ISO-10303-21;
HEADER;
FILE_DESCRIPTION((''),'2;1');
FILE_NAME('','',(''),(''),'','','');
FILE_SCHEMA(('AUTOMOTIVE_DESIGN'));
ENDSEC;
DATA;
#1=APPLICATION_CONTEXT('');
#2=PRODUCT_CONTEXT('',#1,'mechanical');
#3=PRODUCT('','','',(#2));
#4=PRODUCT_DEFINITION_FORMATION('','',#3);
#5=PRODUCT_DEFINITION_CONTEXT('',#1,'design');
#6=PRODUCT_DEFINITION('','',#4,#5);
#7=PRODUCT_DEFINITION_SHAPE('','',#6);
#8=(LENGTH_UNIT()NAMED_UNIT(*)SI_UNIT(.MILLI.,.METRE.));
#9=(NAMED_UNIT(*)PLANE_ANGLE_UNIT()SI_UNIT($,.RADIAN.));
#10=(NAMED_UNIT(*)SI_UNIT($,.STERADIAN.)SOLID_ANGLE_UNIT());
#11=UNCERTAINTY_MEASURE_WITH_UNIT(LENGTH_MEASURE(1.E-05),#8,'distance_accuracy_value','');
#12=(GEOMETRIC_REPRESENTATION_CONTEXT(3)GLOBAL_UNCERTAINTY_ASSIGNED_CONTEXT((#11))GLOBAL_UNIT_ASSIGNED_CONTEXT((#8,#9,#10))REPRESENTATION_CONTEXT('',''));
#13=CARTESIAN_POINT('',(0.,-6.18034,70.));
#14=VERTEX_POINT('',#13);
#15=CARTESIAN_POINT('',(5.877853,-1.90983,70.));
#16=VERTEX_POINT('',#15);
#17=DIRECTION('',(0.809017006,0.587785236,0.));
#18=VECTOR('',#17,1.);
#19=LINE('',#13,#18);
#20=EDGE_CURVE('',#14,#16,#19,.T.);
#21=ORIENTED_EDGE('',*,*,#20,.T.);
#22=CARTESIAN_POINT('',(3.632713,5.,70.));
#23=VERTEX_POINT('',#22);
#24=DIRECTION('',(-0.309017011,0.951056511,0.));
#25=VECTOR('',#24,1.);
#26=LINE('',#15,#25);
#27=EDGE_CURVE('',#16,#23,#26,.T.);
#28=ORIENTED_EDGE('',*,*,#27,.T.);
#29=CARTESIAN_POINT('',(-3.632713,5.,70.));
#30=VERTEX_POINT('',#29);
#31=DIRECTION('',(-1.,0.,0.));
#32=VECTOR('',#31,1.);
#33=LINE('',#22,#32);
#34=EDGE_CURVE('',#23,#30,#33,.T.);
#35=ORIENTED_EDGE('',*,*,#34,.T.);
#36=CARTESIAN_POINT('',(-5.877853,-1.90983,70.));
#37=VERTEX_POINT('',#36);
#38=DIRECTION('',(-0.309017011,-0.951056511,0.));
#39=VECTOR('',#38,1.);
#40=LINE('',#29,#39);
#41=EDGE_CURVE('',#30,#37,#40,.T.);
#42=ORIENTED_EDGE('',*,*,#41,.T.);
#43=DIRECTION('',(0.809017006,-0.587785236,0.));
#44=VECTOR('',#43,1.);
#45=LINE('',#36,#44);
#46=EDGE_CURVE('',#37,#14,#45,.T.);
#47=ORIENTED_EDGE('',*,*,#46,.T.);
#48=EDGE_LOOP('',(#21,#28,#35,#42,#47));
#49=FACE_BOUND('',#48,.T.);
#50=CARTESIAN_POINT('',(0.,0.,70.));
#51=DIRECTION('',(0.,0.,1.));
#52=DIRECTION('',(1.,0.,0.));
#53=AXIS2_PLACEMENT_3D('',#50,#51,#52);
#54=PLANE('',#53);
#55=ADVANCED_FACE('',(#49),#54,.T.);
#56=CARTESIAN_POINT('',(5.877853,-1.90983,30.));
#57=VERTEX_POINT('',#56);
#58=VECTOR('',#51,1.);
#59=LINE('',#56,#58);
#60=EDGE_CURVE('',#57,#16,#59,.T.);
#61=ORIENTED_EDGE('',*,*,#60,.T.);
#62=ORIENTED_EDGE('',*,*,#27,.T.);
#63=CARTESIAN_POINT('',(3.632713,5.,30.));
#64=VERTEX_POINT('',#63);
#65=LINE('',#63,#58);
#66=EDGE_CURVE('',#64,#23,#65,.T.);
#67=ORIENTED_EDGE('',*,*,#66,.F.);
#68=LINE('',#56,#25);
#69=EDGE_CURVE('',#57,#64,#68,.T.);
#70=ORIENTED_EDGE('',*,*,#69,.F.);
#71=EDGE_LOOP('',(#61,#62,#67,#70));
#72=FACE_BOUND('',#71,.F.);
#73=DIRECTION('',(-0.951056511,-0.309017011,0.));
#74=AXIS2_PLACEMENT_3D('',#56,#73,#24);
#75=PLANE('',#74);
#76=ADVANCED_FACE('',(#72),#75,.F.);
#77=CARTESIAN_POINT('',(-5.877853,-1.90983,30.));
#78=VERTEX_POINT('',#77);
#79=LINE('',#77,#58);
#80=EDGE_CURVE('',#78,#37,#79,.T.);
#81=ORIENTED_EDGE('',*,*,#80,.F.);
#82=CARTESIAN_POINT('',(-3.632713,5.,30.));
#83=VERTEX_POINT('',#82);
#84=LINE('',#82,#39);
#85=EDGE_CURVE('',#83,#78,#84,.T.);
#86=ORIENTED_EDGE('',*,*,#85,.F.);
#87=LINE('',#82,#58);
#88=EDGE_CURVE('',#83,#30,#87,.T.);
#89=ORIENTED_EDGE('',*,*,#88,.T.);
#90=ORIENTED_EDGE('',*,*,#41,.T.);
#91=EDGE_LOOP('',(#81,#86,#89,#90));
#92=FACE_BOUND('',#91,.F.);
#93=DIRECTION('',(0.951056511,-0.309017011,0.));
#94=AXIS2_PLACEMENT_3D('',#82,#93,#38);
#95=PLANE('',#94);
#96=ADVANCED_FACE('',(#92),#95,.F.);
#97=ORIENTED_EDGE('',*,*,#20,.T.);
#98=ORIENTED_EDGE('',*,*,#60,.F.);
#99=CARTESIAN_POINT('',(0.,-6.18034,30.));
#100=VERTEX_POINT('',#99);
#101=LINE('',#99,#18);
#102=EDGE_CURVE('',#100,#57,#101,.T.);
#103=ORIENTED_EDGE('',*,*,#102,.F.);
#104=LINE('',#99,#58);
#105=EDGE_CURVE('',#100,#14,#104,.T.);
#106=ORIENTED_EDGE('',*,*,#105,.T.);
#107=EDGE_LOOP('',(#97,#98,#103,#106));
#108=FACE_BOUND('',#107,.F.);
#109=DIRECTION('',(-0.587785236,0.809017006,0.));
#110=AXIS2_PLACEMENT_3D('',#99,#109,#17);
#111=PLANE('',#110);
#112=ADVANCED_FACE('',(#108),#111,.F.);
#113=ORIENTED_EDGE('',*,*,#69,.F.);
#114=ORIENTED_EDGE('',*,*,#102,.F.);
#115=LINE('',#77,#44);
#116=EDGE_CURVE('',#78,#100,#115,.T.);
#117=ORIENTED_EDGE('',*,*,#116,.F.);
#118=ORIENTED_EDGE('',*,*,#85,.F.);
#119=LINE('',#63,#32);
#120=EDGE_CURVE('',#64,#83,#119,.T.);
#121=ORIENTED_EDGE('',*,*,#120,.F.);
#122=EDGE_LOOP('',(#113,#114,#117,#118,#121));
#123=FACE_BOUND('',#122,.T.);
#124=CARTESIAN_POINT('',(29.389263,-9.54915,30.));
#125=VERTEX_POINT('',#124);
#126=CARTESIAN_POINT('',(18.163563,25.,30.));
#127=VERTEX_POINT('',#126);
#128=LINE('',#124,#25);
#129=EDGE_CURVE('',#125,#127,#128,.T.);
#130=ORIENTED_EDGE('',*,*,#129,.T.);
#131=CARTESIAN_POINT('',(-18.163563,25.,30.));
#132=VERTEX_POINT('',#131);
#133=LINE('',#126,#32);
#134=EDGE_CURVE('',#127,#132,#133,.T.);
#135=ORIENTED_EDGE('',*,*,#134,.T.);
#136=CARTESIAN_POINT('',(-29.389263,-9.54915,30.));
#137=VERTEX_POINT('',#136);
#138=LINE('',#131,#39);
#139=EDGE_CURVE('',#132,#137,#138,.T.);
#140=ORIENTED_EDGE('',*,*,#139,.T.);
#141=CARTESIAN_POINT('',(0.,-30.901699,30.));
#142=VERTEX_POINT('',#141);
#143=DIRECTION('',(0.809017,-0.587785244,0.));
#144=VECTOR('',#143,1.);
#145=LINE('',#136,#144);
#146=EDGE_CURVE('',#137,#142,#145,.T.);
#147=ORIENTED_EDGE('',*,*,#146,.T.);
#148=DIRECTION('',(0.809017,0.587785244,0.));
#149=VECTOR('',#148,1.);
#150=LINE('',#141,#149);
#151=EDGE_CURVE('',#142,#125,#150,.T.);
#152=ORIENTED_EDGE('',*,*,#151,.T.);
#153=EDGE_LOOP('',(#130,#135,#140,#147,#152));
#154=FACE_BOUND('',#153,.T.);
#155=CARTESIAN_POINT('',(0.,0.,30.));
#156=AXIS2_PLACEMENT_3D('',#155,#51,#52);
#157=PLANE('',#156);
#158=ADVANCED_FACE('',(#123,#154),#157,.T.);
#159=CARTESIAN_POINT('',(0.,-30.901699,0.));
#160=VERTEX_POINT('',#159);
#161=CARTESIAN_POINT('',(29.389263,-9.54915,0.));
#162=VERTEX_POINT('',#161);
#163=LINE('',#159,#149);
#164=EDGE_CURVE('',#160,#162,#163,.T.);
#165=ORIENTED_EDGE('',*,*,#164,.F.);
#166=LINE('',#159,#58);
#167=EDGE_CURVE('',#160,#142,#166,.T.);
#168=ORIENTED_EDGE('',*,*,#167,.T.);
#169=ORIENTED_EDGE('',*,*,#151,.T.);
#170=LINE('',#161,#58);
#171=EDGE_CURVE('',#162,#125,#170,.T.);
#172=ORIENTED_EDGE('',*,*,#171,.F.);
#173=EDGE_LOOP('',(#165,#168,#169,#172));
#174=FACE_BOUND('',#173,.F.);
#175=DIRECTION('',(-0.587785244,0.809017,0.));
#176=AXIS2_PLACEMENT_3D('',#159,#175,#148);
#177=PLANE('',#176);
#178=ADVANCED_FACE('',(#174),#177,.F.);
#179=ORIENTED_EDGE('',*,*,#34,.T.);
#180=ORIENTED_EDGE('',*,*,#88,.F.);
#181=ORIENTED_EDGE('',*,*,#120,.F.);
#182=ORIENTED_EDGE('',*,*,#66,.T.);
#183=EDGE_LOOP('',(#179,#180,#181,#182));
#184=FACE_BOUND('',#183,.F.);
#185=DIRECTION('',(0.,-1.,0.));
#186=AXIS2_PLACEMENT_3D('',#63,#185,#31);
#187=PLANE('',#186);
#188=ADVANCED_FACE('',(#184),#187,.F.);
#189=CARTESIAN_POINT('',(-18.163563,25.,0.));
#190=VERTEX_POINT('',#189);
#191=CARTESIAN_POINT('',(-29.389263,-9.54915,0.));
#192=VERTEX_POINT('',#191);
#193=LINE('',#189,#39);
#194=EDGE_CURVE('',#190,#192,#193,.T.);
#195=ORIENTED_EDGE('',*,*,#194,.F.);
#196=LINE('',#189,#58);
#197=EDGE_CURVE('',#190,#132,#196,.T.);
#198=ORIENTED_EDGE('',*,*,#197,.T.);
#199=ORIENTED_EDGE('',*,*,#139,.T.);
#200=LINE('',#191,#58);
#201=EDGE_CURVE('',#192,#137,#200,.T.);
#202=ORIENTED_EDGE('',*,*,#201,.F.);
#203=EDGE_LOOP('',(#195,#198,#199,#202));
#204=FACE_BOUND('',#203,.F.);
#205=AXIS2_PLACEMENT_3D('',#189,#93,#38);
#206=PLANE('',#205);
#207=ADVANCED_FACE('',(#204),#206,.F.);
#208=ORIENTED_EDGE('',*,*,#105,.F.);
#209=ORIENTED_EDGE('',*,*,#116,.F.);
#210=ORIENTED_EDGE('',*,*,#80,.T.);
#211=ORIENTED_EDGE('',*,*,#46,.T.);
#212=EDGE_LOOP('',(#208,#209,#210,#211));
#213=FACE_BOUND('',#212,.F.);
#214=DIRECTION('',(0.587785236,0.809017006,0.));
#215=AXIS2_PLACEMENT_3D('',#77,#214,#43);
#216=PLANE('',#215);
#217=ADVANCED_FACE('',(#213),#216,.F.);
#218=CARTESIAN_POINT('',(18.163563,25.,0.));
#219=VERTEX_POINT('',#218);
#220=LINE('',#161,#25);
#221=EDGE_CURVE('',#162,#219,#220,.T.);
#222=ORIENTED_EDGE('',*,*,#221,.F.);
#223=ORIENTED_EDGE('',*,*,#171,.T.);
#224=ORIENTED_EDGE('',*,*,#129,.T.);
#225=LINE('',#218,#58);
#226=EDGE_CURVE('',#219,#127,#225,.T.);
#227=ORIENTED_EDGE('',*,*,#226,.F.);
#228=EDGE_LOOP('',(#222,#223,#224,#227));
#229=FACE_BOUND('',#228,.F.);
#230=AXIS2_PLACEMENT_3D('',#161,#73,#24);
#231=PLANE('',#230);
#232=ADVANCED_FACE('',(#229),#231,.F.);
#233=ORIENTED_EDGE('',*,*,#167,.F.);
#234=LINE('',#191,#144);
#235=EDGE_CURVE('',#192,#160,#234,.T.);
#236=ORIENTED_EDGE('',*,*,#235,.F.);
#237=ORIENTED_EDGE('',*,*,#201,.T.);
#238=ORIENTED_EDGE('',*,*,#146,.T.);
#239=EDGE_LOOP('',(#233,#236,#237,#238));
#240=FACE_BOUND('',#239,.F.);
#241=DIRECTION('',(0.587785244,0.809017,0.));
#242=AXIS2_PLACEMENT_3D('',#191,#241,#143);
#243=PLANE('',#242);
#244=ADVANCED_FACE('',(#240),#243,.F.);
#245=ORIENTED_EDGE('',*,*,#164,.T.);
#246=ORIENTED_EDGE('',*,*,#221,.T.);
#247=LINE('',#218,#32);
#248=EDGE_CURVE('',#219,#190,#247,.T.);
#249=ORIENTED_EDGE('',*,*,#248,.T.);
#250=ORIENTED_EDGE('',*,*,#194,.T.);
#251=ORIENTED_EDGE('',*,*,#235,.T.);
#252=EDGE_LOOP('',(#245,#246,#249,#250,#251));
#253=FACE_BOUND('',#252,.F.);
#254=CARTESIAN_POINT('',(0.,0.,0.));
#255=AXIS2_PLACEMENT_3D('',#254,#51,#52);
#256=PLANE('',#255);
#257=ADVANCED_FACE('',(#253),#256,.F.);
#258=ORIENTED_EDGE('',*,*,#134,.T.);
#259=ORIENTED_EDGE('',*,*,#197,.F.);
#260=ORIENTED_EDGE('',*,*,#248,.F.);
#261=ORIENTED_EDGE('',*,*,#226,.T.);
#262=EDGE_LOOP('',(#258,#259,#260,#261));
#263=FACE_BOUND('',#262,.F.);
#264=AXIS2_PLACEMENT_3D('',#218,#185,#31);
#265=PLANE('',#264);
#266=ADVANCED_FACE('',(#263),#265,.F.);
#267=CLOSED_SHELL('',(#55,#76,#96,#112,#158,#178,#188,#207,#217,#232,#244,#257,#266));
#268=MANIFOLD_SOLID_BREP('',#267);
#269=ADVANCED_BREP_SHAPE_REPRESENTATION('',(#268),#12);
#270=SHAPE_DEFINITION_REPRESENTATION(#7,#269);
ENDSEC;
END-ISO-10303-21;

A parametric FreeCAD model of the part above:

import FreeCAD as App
import Part
import Sketcher
Q = App.Units.Quantity


def add_polygon(sketch, points):
    """Adds a closed chain of lines whose ends are joined by coincident constraints."""
    first, n = sketch.GeometryCount, len(points)
    for a, b in zip(points, points[1:] + points[:1]):
        sketch.addGeometry(Part.LineSegment(App.Vector(*a, 0), App.Vector(*b, 0)), False)
    for i in range(n):
        sketch.addConstraint(Sketcher.Constraint("Coincident", first + i, 2, first + (i + 1) % n, 1))

doc = App.newDocument("Part")
body = doc.addObject("PartDesign::Body", "Body")

# Sketch on XY plane
sketch1 = body.newObject("Sketcher::SketchObject", "Sketch")
sketch1.AttachmentSupport = (doc.getObject("XY_Plane"), [""])
sketch1.MapMode = "FlatFace"
add_polygon(sketch1, [(18, 25), (-18, 25), (-29, -10), (0, -31), (29, -10)])  # lines 0-4
sketch1.addConstraint([
    Sketcher.Constraint("Horizontal", 0),
    Sketcher.Constraint("Symmetric", 1, 2, 3, 2, -2),
    Sketcher.Constraint("PointOnObject", 2, 2, -2),
    Sketcher.Constraint("Equal", 1, 2),
    Sketcher.Constraint("Equal", 3, 4),
    Sketcher.Constraint("Angle", 1, Q("-108.000001 deg")),
    Sketcher.Constraint("Angle", 2, Q("-35.999999 deg")),
    Sketcher.Constraint("DistanceY", -1, 1, 0, 2, Q("25 mm")),
    Sketcher.Constraint("DistanceY", 2, 2, -1, 1, Q("30.901699 mm")),
])
pad1 = body.newObject("PartDesign::Pad", "Pad")
pad1.Profile = sketch1
pad1.Length = 30

# Sketch on XY plane
sketch2 = body.newObject("Sketcher::SketchObject", "Sketch001")
sketch2.AttachmentSupport = (doc.getObject("XY_Plane"), [""])
sketch2.MapMode = "FlatFace"
sketch2.AttachmentOffset = App.Placement(App.Vector(0, 0, 30), App.Rotation())
add_polygon(sketch2, [(-6, -2), (0, -6), (6, -2), (4, 5), (-4, 5)])  # lines 0-4
sketch2.addConstraint([
    Sketcher.Constraint("Horizontal", 3),
    Sketcher.Constraint("Symmetric", 1, 2, 4, 2, -2),
    Sketcher.Constraint("PointOnObject", 0, 2, -2),
    Sketcher.Constraint("Equal", 1, 2),
    Sketcher.Constraint("Equal", 2, 4),
    Sketcher.Constraint("Angle", 0, Q("-35.999999 deg")),
    Sketcher.Constraint("Angle", 2, Q("108.000001 deg")),
    Sketcher.Constraint("DistanceY", -1, 1, 2, 2, Q("5 mm")),
    Sketcher.Constraint("DistanceX", 3, 2, 3, 1, Q("7.265426 mm")),
])
pad2 = body.newObject("PartDesign::Pad", "Pad001")
pad2.Profile = sketch2
pad2.Length = 40

doc.recompute()
